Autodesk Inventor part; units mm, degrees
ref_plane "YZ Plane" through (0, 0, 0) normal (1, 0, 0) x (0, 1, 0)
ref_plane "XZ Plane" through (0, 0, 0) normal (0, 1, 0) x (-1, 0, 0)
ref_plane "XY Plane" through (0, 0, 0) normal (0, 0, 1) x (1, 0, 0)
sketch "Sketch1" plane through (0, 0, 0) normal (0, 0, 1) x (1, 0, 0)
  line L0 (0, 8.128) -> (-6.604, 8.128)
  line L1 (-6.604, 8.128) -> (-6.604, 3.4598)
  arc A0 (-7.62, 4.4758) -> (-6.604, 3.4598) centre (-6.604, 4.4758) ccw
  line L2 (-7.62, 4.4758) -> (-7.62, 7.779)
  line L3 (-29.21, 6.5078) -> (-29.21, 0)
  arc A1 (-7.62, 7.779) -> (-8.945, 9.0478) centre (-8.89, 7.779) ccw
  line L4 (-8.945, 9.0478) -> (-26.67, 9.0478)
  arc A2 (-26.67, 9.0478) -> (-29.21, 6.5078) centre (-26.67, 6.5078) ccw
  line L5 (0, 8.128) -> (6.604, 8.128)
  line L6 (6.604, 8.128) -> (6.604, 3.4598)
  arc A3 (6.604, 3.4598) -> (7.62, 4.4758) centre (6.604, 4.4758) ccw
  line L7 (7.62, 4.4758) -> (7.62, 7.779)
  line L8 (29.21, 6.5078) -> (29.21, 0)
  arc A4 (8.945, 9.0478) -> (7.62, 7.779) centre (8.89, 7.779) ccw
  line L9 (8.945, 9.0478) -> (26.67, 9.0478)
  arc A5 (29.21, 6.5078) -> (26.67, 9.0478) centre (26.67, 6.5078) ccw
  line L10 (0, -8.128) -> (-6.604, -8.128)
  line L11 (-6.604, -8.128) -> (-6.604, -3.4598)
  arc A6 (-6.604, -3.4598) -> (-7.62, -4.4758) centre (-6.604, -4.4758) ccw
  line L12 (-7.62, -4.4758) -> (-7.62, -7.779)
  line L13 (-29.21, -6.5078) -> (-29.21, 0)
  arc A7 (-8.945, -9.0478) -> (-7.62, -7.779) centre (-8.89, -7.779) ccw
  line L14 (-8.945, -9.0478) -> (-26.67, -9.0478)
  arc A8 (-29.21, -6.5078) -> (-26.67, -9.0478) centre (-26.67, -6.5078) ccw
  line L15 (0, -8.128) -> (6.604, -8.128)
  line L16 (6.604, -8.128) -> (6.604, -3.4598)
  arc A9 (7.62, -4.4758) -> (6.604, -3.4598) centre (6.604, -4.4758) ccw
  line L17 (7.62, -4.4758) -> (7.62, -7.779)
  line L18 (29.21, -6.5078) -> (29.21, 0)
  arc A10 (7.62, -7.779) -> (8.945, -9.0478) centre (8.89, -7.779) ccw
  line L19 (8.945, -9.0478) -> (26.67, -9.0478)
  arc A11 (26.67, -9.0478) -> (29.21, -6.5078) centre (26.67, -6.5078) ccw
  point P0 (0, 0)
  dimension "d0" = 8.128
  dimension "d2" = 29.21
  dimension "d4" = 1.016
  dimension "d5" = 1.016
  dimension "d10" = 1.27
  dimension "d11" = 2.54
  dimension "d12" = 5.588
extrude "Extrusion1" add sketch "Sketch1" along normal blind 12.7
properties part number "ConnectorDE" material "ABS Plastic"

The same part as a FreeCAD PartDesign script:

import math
import FreeCAD as App
import Part
import Sketcher
from FreeCAD import Vector
Q = App.Units.Quantity

doc = App.newDocument("Part")
params = doc.addObject("Spreadsheet::Sheet", "Params")
for row, (alias, value) in enumerate([
    ("sketch1_radius", "0.1 in"),
    ("sketch1_radius2", "0.04 in"),
    ("sketch1_radius3", "0.05 in"),
    ("sketch1_width", "0.52 in"),
    ("pad1_length", "0.5 in"),
], start=1):
    params.set(f"A{row}", alias)
    params.set(f"B{row}", "=" + value)
    params.setAlias(f"B{row}", alias)

body = doc.addObject("PartDesign::Body", "Body")

sketch1 = body.newObject("Sketcher::SketchObject", "Sketch")
sketch1.AttachmentSupport = (doc.getObject("XY_Plane"), [""])
sketch1.MapMode = "FlatFace"
sketch1.addGeometry([
    Part.LineSegment(Vector(6.6, 8.1, 0), Vector(-6.6, 8.1, 0)),
    Part.LineSegment(Vector(-6.6, 8.1, 0), Vector(-6.6, 3.5, 0)),
    Part.ArcOfCircle(Part.Circle(Vector(-6.6, 4.5, 0), Vector(0, 0, 1), 1), math.radians(180), math.radians(270)),
    Part.LineSegment(Vector(-7.6, 4.5, 0), Vector(-7.6, 7.8, 0)),
    Part.ArcOfCircle(Part.Circle(Vector(-8.9, 7.8, 0), Vector(0, 0, 1), 1.3), math.radians(0), math.radians(92)),
    Part.LineSegment(Vector(-8.9, 9, 0), Vector(-26.7, 9, 0)),
    Part.ArcOfCircle(Part.Circle(Vector(-26.7, 6.5, 0), Vector(0, 0, 1), 2.5), math.radians(90), math.radians(180)),
    Part.LineSegment(Vector(-29.2, 6.5, 0), Vector(-29.2, -6.5, 0)),
    Part.ArcOfCircle(Part.Circle(Vector(-26.7, -6.5, 0), Vector(0, 0, 1), 2.5), math.radians(180), math.radians(270)),
    Part.LineSegment(Vector(-26.7, -9, 0), Vector(-8.9, -9, 0)),
    Part.ArcOfCircle(Part.Circle(Vector(-8.9, -7.8, 0), Vector(0, 0, 1), 1.3), math.radians(-92), math.radians(0)),
    Part.LineSegment(Vector(-7.6, -7.8, 0), Vector(-7.6, -4.5, 0)),
    Part.ArcOfCircle(Part.Circle(Vector(-6.6, -4.5, 0), Vector(0, 0, 1), 1), math.radians(90), math.radians(180)),
    Part.LineSegment(Vector(-6.6, -3.5, 0), Vector(-6.6, -8.1, 0)),
    Part.LineSegment(Vector(-6.6, -8.1, 0), Vector(6.6, -8.1, 0)),
    Part.LineSegment(Vector(6.6, -8.1, 0), Vector(6.6, -3.5, 0)),
    Part.ArcOfCircle(Part.Circle(Vector(6.6, -4.5, 0), Vector(0, 0, 1), 1), math.radians(0), math.radians(90)),
    Part.LineSegment(Vector(7.6, -4.5, 0), Vector(7.6, -7.8, 0)),
    Part.ArcOfCircle(Part.Circle(Vector(8.9, -7.8, 0), Vector(0, 0, 1), 1.3), math.radians(180), math.radians(272)),
    Part.LineSegment(Vector(8.9, -9, 0), Vector(26.7, -9, 0)),
    Part.ArcOfCircle(Part.Circle(Vector(26.7, -6.5, 0), Vector(0, 0, 1), 2.5), math.radians(-90), math.radians(0)),
    Part.LineSegment(Vector(29.2, -6.5, 0), Vector(29.2, 6.5, 0)),
    Part.ArcOfCircle(Part.Circle(Vector(26.7, 6.5, 0), Vector(0, 0, 1), 2.5), math.radians(0), math.radians(90)),
    Part.LineSegment(Vector(26.7, 9, 0), Vector(8.9, 9, 0)),
    Part.ArcOfCircle(Part.Circle(Vector(8.9, 7.8, 0), Vector(0, 0, 1), 1.3), math.radians(88), math.radians(180)),
    Part.LineSegment(Vector(7.6, 7.8, 0), Vector(7.6, 4.5, 0)),
    Part.ArcOfCircle(Part.Circle(Vector(6.6, 4.5, 0), Vector(0, 0, 1), 1), math.radians(-90), math.radians(0)),
    Part.LineSegment(Vector(6.6, 3.5, 0), Vector(6.6, 8.1, 0)),
], False)
sketch1.addConstraint([
    Sketcher.Constraint("Coincident", 0, 2, 1, 1),
    Sketcher.Constraint("Coincident", 1, 2, 2, 2),
    Sketcher.Constraint("Tangent", 2, 1, 3, 1),
    Sketcher.Constraint("Tangent", 3, 2, 4, 1),
    Sketcher.Constraint("Coincident", 4, 2, 5, 1),
    Sketcher.Constraint("Tangent", 5, 2, 6, 1),
    Sketcher.Constraint("Tangent", 6, 2, 7, 1),
    Sketcher.Constraint("Tangent", 7, 2, 8, 1),
    Sketcher.Constraint("Tangent", 8, 2, 9, 1),
    Sketcher.Constraint("Coincident", 9, 2, 10, 1),
    Sketcher.Constraint("Tangent", 10, 2, 11, 1),
    Sketcher.Constraint("Tangent", 11, 2, 12, 2),
    Sketcher.Constraint("Coincident", 12, 1, 13, 1),
    Sketcher.Constraint("Coincident", 13, 2, 14, 1),
    Sketcher.Constraint("Coincident", 14, 2, 15, 1),
    Sketcher.Constraint("Coincident", 15, 2, 16, 2),
    Sketcher.Constraint("Tangent", 16, 1, 17, 1),
    Sketcher.Constraint("Tangent", 17, 2, 18, 1),
    Sketcher.Constraint("Coincident", 18, 2, 19, 1),
    Sketcher.Constraint("Tangent", 19, 2, 20, 1),
    Sketcher.Constraint("Tangent", 20, 2, 21, 1),
    Sketcher.Constraint("Tangent", 21, 2, 22, 1),
    Sketcher.Constraint("Tangent", 22, 2, 23, 1),
    Sketcher.Constraint("Coincident", 23, 2, 24, 1),
    Sketcher.Constraint("Tangent", 24, 2, 25, 1),
    Sketcher.Constraint("Tangent", 25, 2, 26, 2),
    Sketcher.Constraint("Coincident", 26, 1, 27, 1),
    Sketcher.Constraint("Coincident", 27, 2, 0, 1),
    Sketcher.Constraint("Horizontal", 0),
    Sketcher.Constraint("Vertical", 1),
    Sketcher.Constraint("Vertical", 3),
    Sketcher.Constraint("Horizontal", 5),
    Sketcher.Constraint("Vertical", 7),
    Sketcher.Constraint("Horizontal", 9),
    Sketcher.Constraint("Vertical", 11),
    Sketcher.Constraint("Vertical", 13),
    Sketcher.Constraint("Horizontal", 14),
    Sketcher.Constraint("Vertical", 15),
    Sketcher.Constraint("Vertical", 17),
    Sketcher.Constraint("Horizontal", 19),
    Sketcher.Constraint("Vertical", 21),
    Sketcher.Constraint("Horizontal", 23),
    Sketcher.Constraint("Vertical", 25),
    Sketcher.Constraint("Vertical", 27),
    Sketcher.Constraint("Equal", 6, 8),
    Sketcher.Constraint("Equal", 4, 10),
    Sketcher.Constraint("Equal", 2, 12),
    Sketcher.Constraint("Equal", 12, 16),
    Sketcher.Constraint("Equal", 10, 18),
    Sketcher.Constraint("Equal", 8, 20),
    Sketcher.Constraint("Equal", 20, 22),
    Sketcher.Constraint("Equal", 18, 24),
    Sketcher.Constraint("Equal", 16, 26),
    Sketcher.Constraint("Symmetric", 2, 3, 16, 3, -1, 1),
    Sketcher.Constraint("Symmetric", 6, 3, 20, 3, -1, 1),
    Sketcher.Constraint("Symmetric", 10, 3, 24, 3, -1, 1),
    Sketcher.Constraint("Symmetric", 0, 2, 14, 2, -1, 1),
    Sketcher.Constraint("Symmetric", 12, 1, 26, 1, -1, 1),
    Sketcher.Constraint("Symmetric", 12, 3, 16, 3, -2),
    Sketcher.Constraint("Symmetric", 9, 2, 18, 2, -2),
    Sketcher.Constraint("Symmetric", 4, 2, 23, 2, -2),
    Sketcher.Constraint("Vertical", 12, 3, 0, 2),
    Sketcher.Constraint("Vertical", 1, 2, 12, 1),
    Sketcher.Constraint("Radius", 6, Q("0.1 in")),
    Sketcher.Constraint("Radius", 2, Q("0.04 in")),
    Sketcher.Constraint("Radius", 4, Q("0.05 in")),
    Sketcher.Constraint("DistanceY", -1, 1, 0, 2, Q("0.32 in")),
    Sketcher.Constraint("DistanceX", 6, 2, -1, 1, Q("1.15 in")),
    Sketcher.Constraint("DistanceY", 9, 2, 12, 1, Q("0.22 in")),
    Sketcher.Constraint("DistanceX", 0, 2, 0, 1, Q("0.52 in")),
    Sketcher.Constraint("DistanceX", 5, 2, 5, 1, Q("17.725 mm")),
    Sketcher.Constraint("DistanceY", 1, 2, 1, 1, Q("4.6682 mm")),
])
sketch1.setExpression("Constraints[63]", "Params.sketch1_radius")
sketch1.setExpression("Constraints[64]", "Params.sketch1_radius2")
sketch1.setExpression("Constraints[65]", "Params.sketch1_radius3")
sketch1.setExpression("Constraints[69]", "Params.sketch1_width")
pad1 = body.newObject("PartDesign::Pad", "Pad")
pad1.Profile = sketch1
pad1.setExpression("Length", "Params.pad1_length")

doc.recompute()
